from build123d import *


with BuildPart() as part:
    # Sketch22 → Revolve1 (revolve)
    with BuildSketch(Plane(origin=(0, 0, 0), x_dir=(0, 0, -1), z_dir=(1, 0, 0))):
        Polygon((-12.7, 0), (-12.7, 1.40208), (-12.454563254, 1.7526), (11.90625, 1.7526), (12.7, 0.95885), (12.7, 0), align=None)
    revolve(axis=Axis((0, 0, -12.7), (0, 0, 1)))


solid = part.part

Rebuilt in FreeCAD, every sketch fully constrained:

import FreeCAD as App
import Part
import Sketcher
from FreeCAD import Vector
Q = App.Units.Quantity


def add_polygon(sketch, points):
    """Adds a closed chain of lines whose ends are joined by coincident constraints."""
    first, n = sketch.GeometryCount, len(points)
    for a, b in zip(points, points[1:] + points[:1]):
        sketch.addGeometry(Part.LineSegment(App.Vector(*a, 0), App.Vector(*b, 0)), False)
    for i in range(n):
        sketch.addConstraint(Sketcher.Constraint("Coincident", first + i, 2, first + (i + 1) % n, 1))

doc = App.newDocument("Part")
params = doc.addObject("Spreadsheet::Sheet", "Params")
for row, (alias, value) in enumerate([
    ("sketch1_height", "1 in"),
    ("revolution_angle", "360 deg"),
], start=1):
    params.set(f"A{row}", alias)
    params.set(f"B{row}", "=" + value)
    params.setAlias(f"B{row}", alias)

body = doc.addObject("PartDesign::Body", "Body")

# Sketch on YZ plane
sketch1 = body.newObject("Sketcher::SketchObject", "Sketch")
sketch1.AttachmentSupport = (doc.getObject("YZ_Plane"), [""])
sketch1.MapMode = "FlatFace"
add_polygon(sketch1, [(1.4, 12.7), (0, 12.7), (0, -12.7), (0.96, -12.7), (1.75, -11.91), (1.75, 12.45)])  # lines 0-5
sketch1.addConstraint([
    Sketcher.Constraint("Horizontal", 0),
    Sketcher.Constraint("Vertical", 1),
    Sketcher.Constraint("Horizontal", 2),
    Sketcher.Constraint("Vertical", 4),
    Sketcher.Constraint("Symmetric", 0, 2, 1, 2, -1, 1),
    Sketcher.Constraint("DistanceY", 1, 2, 1, 1, Q("1 in")),
    Sketcher.Constraint("Angle", 3, Q("45 deg")),
    Sketcher.Constraint("Angle", 5, Q("145 deg")),
    Sketcher.Constraint("DistanceX", 0, 2, 0, 1, Q("0.0552 in")),
    Sketcher.Constraint("DistanceX", -1, 1, 3, 2, Q("0.069 in")),
    Sketcher.Constraint("DistanceY", 3, 2, -1, 1, Q("0.46875 in")),
])
sketch1.setExpression("Constraints[11]", "Params.sketch1_height")
revolution = body.newObject("PartDesign::Revolution", "Revolution")
revolution.Profile = sketch1
revolution.ReferenceAxis = (sketch1, ["V_Axis"])
revolution.setExpression("Angle", "Params.revolution_angle")

doc.recompute()
